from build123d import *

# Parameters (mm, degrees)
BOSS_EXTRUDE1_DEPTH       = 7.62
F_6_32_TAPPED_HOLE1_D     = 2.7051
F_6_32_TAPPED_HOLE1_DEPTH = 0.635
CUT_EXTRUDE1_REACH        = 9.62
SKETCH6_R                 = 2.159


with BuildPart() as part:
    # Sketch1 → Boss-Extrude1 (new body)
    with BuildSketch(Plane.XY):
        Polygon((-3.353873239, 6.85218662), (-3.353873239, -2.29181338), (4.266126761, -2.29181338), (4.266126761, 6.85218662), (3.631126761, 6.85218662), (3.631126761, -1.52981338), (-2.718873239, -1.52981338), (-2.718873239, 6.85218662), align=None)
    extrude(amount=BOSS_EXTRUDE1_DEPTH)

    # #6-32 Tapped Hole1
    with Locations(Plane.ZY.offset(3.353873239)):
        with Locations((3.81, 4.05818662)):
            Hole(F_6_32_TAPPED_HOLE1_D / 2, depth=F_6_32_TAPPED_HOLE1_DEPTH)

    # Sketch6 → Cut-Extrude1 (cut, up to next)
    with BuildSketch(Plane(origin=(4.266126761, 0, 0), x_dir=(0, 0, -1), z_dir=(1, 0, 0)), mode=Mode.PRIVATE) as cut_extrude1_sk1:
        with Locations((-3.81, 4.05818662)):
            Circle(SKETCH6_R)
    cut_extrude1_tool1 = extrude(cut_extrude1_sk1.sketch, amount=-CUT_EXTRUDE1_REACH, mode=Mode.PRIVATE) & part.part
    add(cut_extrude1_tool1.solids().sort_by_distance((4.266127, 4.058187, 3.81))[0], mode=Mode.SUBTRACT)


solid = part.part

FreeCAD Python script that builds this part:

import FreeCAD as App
import Part
import Sketcher
Q = App.Units.Quantity

doc = App.newDocument("Part")
body = doc.addObject("PartDesign::Body", "Body")

# Sketch on XY plane
sketch1 = body.newObject("Sketcher::SketchObject", "Sketch")
sketch1.AttachmentSupport = (doc.getObject("XY_Plane"), [""])
sketch1.MapMode = "FlatFace"
sketch1.addGeometry(Part.LineSegment(App.Vector(-3.353873, 6.852187, 0), App.Vector(-3.353873, -2.291813, 0)), False)
sketch1.addGeometry(Part.LineSegment(App.Vector(-3.353873, -2.291813, 0), App.Vector(4.266127, -2.291813, 0)), False)
sketch1.addGeometry(Part.LineSegment(App.Vector(4.266127, -2.291813, 0), App.Vector(4.266127, 6.852187, 0)), False)
sketch1.addGeometry(Part.LineSegment(App.Vector(4.266127, 6.852187, 0), App.Vector(3.631127, 6.852187, 0)), False)
sketch1.addGeometry(Part.LineSegment(App.Vector(3.631127, 6.852187, 0), App.Vector(3.631127, -1.529813, 0)), False)
sketch1.addGeometry(Part.LineSegment(App.Vector(3.631127, -1.529813, 0), App.Vector(-2.718873, -1.529813, 0)), False)
sketch1.addGeometry(Part.LineSegment(App.Vector(-2.718873, -1.529813, 0), App.Vector(-2.718873, 6.852187, 0)), False)
sketch1.addGeometry(Part.LineSegment(App.Vector(-2.718873, 6.852187, 0), App.Vector(-3.353873, 6.852187, 0)), False)
sketch1.addConstraint(Sketcher.Constraint("Coincident", 0, 2, 1, 1))
sketch1.addConstraint(Sketcher.Constraint("Coincident", 1, 2, 2, 1))
sketch1.addConstraint(Sketcher.Constraint("Coincident", 2, 2, 3, 1))
sketch1.addConstraint(Sketcher.Constraint("Coincident", 3, 2, 4, 1))
sketch1.addConstraint(Sketcher.Constraint("Coincident", 4, 2, 5, 1))
sketch1.addConstraint(Sketcher.Constraint("Coincident", 5, 2, 6, 1))
sketch1.addConstraint(Sketcher.Constraint("Coincident", 6, 2, 7, 1))
sketch1.addConstraint(Sketcher.Constraint("Coincident", 7, 2, 0, 1))
sketch1.addConstraint(Sketcher.Constraint("Vertical", 0))
sketch1.addConstraint(Sketcher.Constraint("Horizontal", 1))
sketch1.addConstraint(Sketcher.Constraint("Vertical", 2))
sketch1.addConstraint(Sketcher.Constraint("Horizontal", 3))
sketch1.addConstraint(Sketcher.Constraint("Vertical", 4))
sketch1.addConstraint(Sketcher.Constraint("Horizontal", 5))
sketch1.addConstraint(Sketcher.Constraint("Vertical", 6))
sketch1.addConstraint(Sketcher.Constraint("Horizontal", 7))
sketch1.addConstraint(Sketcher.Constraint("Horizontal", 3, 2, 6, 2))
sketch1.addConstraint(Sketcher.Constraint("Equal", 3, 7))
sketch1.addConstraint(Sketcher.Constraint("DistanceX", 1, 1, 1, 2, Q("0.3 in")))
sketch1.addConstraint(Sketcher.Constraint("DistanceX", 5, 2, 5, 1, Q("0.25 in")))
sketch1.addConstraint(Sketcher.Constraint("DistanceY", 0, 2, 0, 1, Q("0.36 in")))
sketch1.addConstraint(Sketcher.Constraint("DistanceY", 4, 2, 4, 1, Q("0.33 in")))
sketch1.addConstraint(Sketcher.Constraint("DistanceX", 0, 2, -1, 1, 3.353873))
sketch1.addConstraint(Sketcher.Constraint("DistanceY", 0, 2, -1, 1, 2.291813))
pad1 = body.newObject("PartDesign::Pad", "Pad")
pad1.Profile = sketch1
pad1.Length = Q("0.3 in")

# Sketch on YZ plane
sketch2 = body.newObject("Sketcher::SketchObject", "Sketch001")
sketch2.AttachmentSupport = (doc.getObject("YZ_Plane"), [""])
sketch2.MapMode = "FlatFace"
sketch2.AttachmentOffset = App.Placement(App.Vector(0, 0, -3.353873), App.Rotation())
sketch2.addGeometry(Part.Circle(App.Vector(4.058187, 3.81, 0), App.Vector(0, 0, 1), 1.35255), False)
sketch2.addConstraint(Sketcher.Constraint("Diameter", 0, Q("0.1065 in")))
sketch2.addConstraint(Sketcher.Constraint("DistanceY", -1, 1, 0, 3, Q("0.15 in")))
sketch2.addConstraint(Sketcher.Constraint("DistanceX", -1, 1, 0, 3, 4.058187))
doc.recompute()
hole = body.newObject("PartDesign::Hole", "Hole")
hole.Profile = sketch2
hole.ThreadType = "None"
hole.Diameter = Q("0.1065 in")
hole.DepthType = "Dimension"
hole.Depth = Q("0.025 in")
hole.DrillPoint = "Flat"
hole.Reversed = True

# Sketch on YZ plane
sketch3 = body.newObject("Sketcher::SketchObject", "Sketch002")
sketch3.AttachmentSupport = (doc.getObject("YZ_Plane"), [""])
sketch3.MapMode = "FlatFace"
sketch3.AttachmentOffset = App.Placement(App.Vector(0, 0, 4.266127), App.Rotation())
sketch3.addGeometry(Part.Circle(App.Vector(4.058187, 3.81, 0), App.Vector(0, 0, 1), 2.159), False)
sketch3.addConstraint(Sketcher.Constraint("Diameter", 0, Q("0.17 in")))
sketch3.addConstraint(Sketcher.Constraint("DistanceY", -1, 1, 0, 3, Q("0.15 in")))
sketch3.addConstraint(Sketcher.Constraint("DistanceX", -1, 1, 0, 3, 4.058187))
pocket1 = body.newObject("PartDesign::Pocket", "Pocket")
pocket1.Profile = sketch3
pocket1.Type = "UpToFirst"

doc.recompute()
